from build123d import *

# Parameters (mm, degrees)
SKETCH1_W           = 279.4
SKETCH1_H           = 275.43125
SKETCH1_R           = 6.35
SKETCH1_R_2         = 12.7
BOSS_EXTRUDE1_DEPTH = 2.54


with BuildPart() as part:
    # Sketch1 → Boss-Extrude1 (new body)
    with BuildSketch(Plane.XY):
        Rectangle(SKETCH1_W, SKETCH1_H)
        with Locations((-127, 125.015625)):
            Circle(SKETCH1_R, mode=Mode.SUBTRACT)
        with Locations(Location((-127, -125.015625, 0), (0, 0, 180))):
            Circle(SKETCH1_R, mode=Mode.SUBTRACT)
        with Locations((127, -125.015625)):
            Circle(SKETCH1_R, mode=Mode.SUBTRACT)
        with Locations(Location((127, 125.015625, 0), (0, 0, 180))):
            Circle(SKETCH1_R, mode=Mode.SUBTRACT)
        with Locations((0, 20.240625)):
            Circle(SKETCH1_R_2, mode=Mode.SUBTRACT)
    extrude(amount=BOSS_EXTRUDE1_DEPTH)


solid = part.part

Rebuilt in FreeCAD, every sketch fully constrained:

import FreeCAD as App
import Part
import Sketcher
from FreeCAD import Vector
Q = App.Units.Quantity

doc = App.newDocument("Part")
body = doc.addObject("PartDesign::Body", "Body")

# Sketch on XY plane
sketch1 = doc.addObject("Sketcher::SketchObject", "Sketch")
body.addObject(sketch1)
sketch1.AttachmentSupport = (doc.XY_Plane, [""])
sketch1.MapMode = "FlatFace"
sketch1.addGeometry(Part.LineSegment(Vector(-140, 138, 0), Vector(-140, -138, 0)), False)
sketch1.addGeometry(Part.LineSegment(Vector(-140, -138, 0), Vector(140, -138, 0)), False)
sketch1.addGeometry(Part.LineSegment(Vector(140, -138, 0), Vector(140, 138, 0)), False)
sketch1.addGeometry(Part.LineSegment(Vector(140, 138, 0), Vector(-140, 138, 0)), False)
sketch1.addGeometry(Part.Circle(Vector(-127, -125, 0), Vector(0, 0, 1), 6), False)
sketch1.addGeometry(Part.Circle(Vector(127, -125, 0), Vector(0, 0, 1), 6), False)
sketch1.addGeometry(Part.Circle(Vector(-127, 125, 0), Vector(0, 0, 1), 6), False)
sketch1.addGeometry(Part.Circle(Vector(0, 20, 0), Vector(0, 0, 1), 13), False)
sketch1.addGeometry(Part.Circle(Vector(127, 125, 0), Vector(0, 0, 1), 6), False)
sketch1.addConstraint(Sketcher.Constraint("Coincident", 0, 2, 1, 1))
sketch1.addConstraint(Sketcher.Constraint("Coincident", 1, 2, 2, 1))
sketch1.addConstraint(Sketcher.Constraint("Coincident", 2, 2, 3, 1))
sketch1.addConstraint(Sketcher.Constraint("Coincident", 3, 2, 0, 1))
sketch1.addConstraint(Sketcher.Constraint("Vertical", 0))
sketch1.addConstraint(Sketcher.Constraint("Horizontal", 1))
sketch1.addConstraint(Sketcher.Constraint("Vertical", 2))
sketch1.addConstraint(Sketcher.Constraint("Horizontal", 3))
sketch1.addConstraint(Sketcher.Constraint("Equal", 4, 5))
sketch1.addConstraint(Sketcher.Constraint("Equal", 5, 6))
sketch1.addConstraint(Sketcher.Constraint("Equal", 6, 8))
sketch1.addConstraint(Sketcher.Constraint("Symmetric", 5, 3, 6, 3, -1, 1))
sketch1.addConstraint(Sketcher.Constraint("Symmetric", 4, 3, 8, 3, -1, 1))
sketch1.addConstraint(Sketcher.Constraint("Symmetric", 0, 2, 2, 2, -1, 1))
sketch1.addConstraint(Sketcher.Constraint("Symmetric", 4, 3, 5, 3, -2))
sketch1.addConstraint(Sketcher.Constraint("PointOnObject", 7, 3, -2))
sketch1.addConstraint(Sketcher.Constraint("Diameter", 7, Q("1 in")))
sketch1.addConstraint(Sketcher.Constraint("Diameter", 4, Q("0.5 in")))
sketch1.addConstraint(Sketcher.Constraint("DistanceX", 1, 1, 1, 2, Q("11 in")))
sketch1.addConstraint(Sketcher.Constraint("DistanceX", 4, 3, -1, 1, Q("5 in")))
sketch1.addConstraint(Sketcher.Constraint("DistanceY", 0, 2, 4, 3, Q("0.5 in")))
sketch1.addConstraint(Sketcher.Constraint("DistanceY", 0, 2, 0, 1, Q("10.84375 in")))
sketch1.addConstraint(Sketcher.Constraint("DistanceY", -1, 1, 7, 3, Q("0.796875 in")))
pad1 = doc.addObject("PartDesign::Pad", "Pad")
body.addObject(pad1)
pad1.Profile = sketch1
pad1.Length = Q("0.1 in")

doc.recompute()
